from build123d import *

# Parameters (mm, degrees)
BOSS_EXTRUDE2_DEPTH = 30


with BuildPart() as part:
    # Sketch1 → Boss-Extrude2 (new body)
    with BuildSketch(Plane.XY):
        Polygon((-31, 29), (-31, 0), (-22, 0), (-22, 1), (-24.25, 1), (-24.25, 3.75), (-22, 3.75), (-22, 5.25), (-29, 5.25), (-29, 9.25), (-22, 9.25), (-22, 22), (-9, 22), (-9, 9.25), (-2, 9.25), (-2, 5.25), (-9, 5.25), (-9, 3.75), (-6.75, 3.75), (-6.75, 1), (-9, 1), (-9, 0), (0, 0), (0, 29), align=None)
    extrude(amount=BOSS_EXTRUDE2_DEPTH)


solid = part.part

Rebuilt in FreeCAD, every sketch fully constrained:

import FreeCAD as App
import Part
import Sketcher

doc = App.newDocument("Part")
body = doc.addObject("PartDesign::Body", "Body")

# Sketch on XY plane
sketch1 = body.newObject("Sketcher::SketchObject", "Sketch")
sketch1.AttachmentSupport = (doc.getObject("XY_Plane"), [""])
sketch1.MapMode = "FlatFace"
sketch1.addGeometry(Part.LineSegment(App.Vector(-31, 29, 0), App.Vector(-31, 0, 0)), False)
sketch1.addGeometry(Part.LineSegment(App.Vector(-31, 0, 0), App.Vector(-22, 0, 0)), False)
sketch1.addGeometry(Part.LineSegment(App.Vector(-22, 0, 0), App.Vector(-22, 1, 0)), False)
sketch1.addGeometry(Part.LineSegment(App.Vector(-22, 1, 0), App.Vector(-24.2, 1, 0)), False)
sketch1.addGeometry(Part.LineSegment(App.Vector(-24.2, 1, 0), App.Vector(-24.2, 3.8, 0)), False)
sketch1.addGeometry(Part.LineSegment(App.Vector(-24.2, 3.8, 0), App.Vector(-22, 3.8, 0)), False)
sketch1.addGeometry(Part.LineSegment(App.Vector(-22, 3.8, 0), App.Vector(-22, 5.2, 0)), False)
sketch1.addGeometry(Part.LineSegment(App.Vector(-22, 5.2, 0), App.Vector(-29, 5.2, 0)), False)
sketch1.addGeometry(Part.LineSegment(App.Vector(-29, 5.2, 0), App.Vector(-29, 9.2, 0)), False)
sketch1.addGeometry(Part.LineSegment(App.Vector(-29, 9.2, 0), App.Vector(-22, 9.2, 0)), False)
sketch1.addGeometry(Part.LineSegment(App.Vector(-22, 9.2, 0), App.Vector(-22, 22, 0)), False)
sketch1.addGeometry(Part.LineSegment(App.Vector(-22, 22, 0), App.Vector(-9, 22, 0)), False)
sketch1.addGeometry(Part.LineSegment(App.Vector(-9, 22, 0), App.Vector(-9, 9.2, 0)), False)
sketch1.addGeometry(Part.LineSegment(App.Vector(-9, 9.2, 0), App.Vector(-2, 9.2, 0)), False)
sketch1.addGeometry(Part.LineSegment(App.Vector(-2, 9.2, 0), App.Vector(-2, 5.2, 0)), False)
sketch1.addGeometry(Part.LineSegment(App.Vector(-2, 5.2, 0), App.Vector(-9, 5.2, 0)), False)
sketch1.addGeometry(Part.LineSegment(App.Vector(-9, 5.2, 0), App.Vector(-9, 3.8, 0)), False)
sketch1.addGeometry(Part.LineSegment(App.Vector(-9, 3.8, 0), App.Vector(-6.8, 3.8, 0)), False)
sketch1.addGeometry(Part.LineSegment(App.Vector(-6.8, 3.8, 0), App.Vector(-6.8, 1, 0)), False)
sketch1.addGeometry(Part.LineSegment(App.Vector(-6.8, 1, 0), App.Vector(-9, 1, 0)), False)
sketch1.addGeometry(Part.LineSegment(App.Vector(-9, 1, 0), App.Vector(-9, 0, 0)), False)
sketch1.addGeometry(Part.LineSegment(App.Vector(-9, 0, 0), App.Vector(0, 0, 0)), False)
sketch1.addGeometry(Part.LineSegment(App.Vector(0, 0, 0), App.Vector(0, 29, 0)), False)
sketch1.addGeometry(Part.LineSegment(App.Vector(0, 29, 0), App.Vector(-31, 29, 0)), False)
sketch1.addConstraint(Sketcher.Constraint("Coincident", 0, 2, 1, 1))
sketch1.addConstraint(Sketcher.Constraint("Coincident", 1, 2, 2, 1))
sketch1.addConstraint(Sketcher.Constraint("Coincident", 2, 2, 3, 1))
sketch1.addConstraint(Sketcher.Constraint("Coincident", 3, 2, 4, 1))
sketch1.addConstraint(Sketcher.Constraint("Coincident", 4, 2, 5, 1))
sketch1.addConstraint(Sketcher.Constraint("Coincident", 5, 2, 6, 1))
sketch1.addConstraint(Sketcher.Constraint("Coincident", 6, 2, 7, 1))
sketch1.addConstraint(Sketcher.Constraint("Coincident", 7, 2, 8, 1))
sketch1.addConstraint(Sketcher.Constraint("Coincident", 8, 2, 9, 1))
sketch1.addConstraint(Sketcher.Constraint("Coincident", 9, 2, 10, 1))
sketch1.addConstraint(Sketcher.Constraint("Coincident", 10, 2, 11, 1))
sketch1.addConstraint(Sketcher.Constraint("Coincident", 11, 2, 12, 1))
sketch1.addConstraint(Sketcher.Constraint("Coincident", 12, 2, 13, 1))
sketch1.addConstraint(Sketcher.Constraint("Coincident", 13, 2, 14, 1))
sketch1.addConstraint(Sketcher.Constraint("Coincident", 14, 2, 15, 1))
sketch1.addConstraint(Sketcher.Constraint("Coincident", 15, 2, 16, 1))
sketch1.addConstraint(Sketcher.Constraint("Coincident", 16, 2, 17, 1))
sketch1.addConstraint(Sketcher.Constraint("Coincident", 17, 2, 18, 1))
sketch1.addConstraint(Sketcher.Constraint("Coincident", 18, 2, 19, 1))
sketch1.addConstraint(Sketcher.Constraint("Coincident", 19, 2, 20, 1))
sketch1.addConstraint(Sketcher.Constraint("Coincident", 20, 2, 21, 1))
sketch1.addConstraint(Sketcher.Constraint("Coincident", 21, 2, 22, 1))
sketch1.addConstraint(Sketcher.Constraint("Coincident", 22, 2, 23, 1))
sketch1.addConstraint(Sketcher.Constraint("Coincident", 23, 2, 0, 1))
sketch1.addConstraint(Sketcher.Constraint("Vertical", 0))
sketch1.addConstraint(Sketcher.Constraint("Horizontal", 1))
sketch1.addConstraint(Sketcher.Constraint("Vertical", 2))
sketch1.addConstraint(Sketcher.Constraint("Horizontal", 3))
sketch1.addConstraint(Sketcher.Constraint("Vertical", 4))
sketch1.addConstraint(Sketcher.Constraint("Horizontal", 5))
sketch1.addConstraint(Sketcher.Constraint("Vertical", 6))
sketch1.addConstraint(Sketcher.Constraint("Horizontal", 7))
sketch1.addConstraint(Sketcher.Constraint("Vertical", 8))
sketch1.addConstraint(Sketcher.Constraint("Horizontal", 9))
sketch1.addConstraint(Sketcher.Constraint("Vertical", 10))
sketch1.addConstraint(Sketcher.Constraint("Horizontal", 11))
sketch1.addConstraint(Sketcher.Constraint("Vertical", 12))
sketch1.addConstraint(Sketcher.Constraint("Horizontal", 13))
sketch1.addConstraint(Sketcher.Constraint("Vertical", 14))
sketch1.addConstraint(Sketcher.Constraint("Horizontal", 15))
sketch1.addConstraint(Sketcher.Constraint("Vertical", 16))
sketch1.addConstraint(Sketcher.Constraint("Horizontal", 17))
sketch1.addConstraint(Sketcher.Constraint("Vertical", 18))
sketch1.addConstraint(Sketcher.Constraint("Horizontal", 19))
sketch1.addConstraint(Sketcher.Constraint("Vertical", 20))
sketch1.addConstraint(Sketcher.Constraint("Horizontal", 21))
sketch1.addConstraint(Sketcher.Constraint("Vertical", 22))
sketch1.addConstraint(Sketcher.Constraint("Horizontal", 23))
sketch1.addConstraint(Sketcher.Constraint("Coincident", 21, 2, -1, 1))
sketch1.addConstraint(Sketcher.Constraint("PointOnObject", 0, 2, -1))
sketch1.addConstraint(Sketcher.Constraint("Horizontal", 9, 2, 12, 2))
sketch1.addConstraint(Sketcher.Constraint("Horizontal", 7, 2, 14, 2))
sketch1.addConstraint(Sketcher.Constraint("Horizontal", 5, 2, 16, 2))
sketch1.addConstraint(Sketcher.Constraint("Horizontal", 3, 2, 18, 2))
sketch1.addConstraint(Sketcher.Constraint("Vertical", 2, 2, 5, 2))
sketch1.addConstraint(Sketcher.Constraint("Vertical", 6, 2, 9, 2))
sketch1.addConstraint(Sketcher.Constraint("Vertical", 12, 2, 15, 2))
sketch1.addConstraint(Sketcher.Constraint("Vertical", 16, 2, 19, 2))
sketch1.addConstraint(Sketcher.Constraint("Equal", 9, 13))
sketch1.addConstraint(Sketcher.Constraint("Equal", 5, 17))
sketch1.addConstraint(Sketcher.Constraint("Equal", 1, 21))
sketch1.addConstraint(Sketcher.Constraint("DistanceX", 1, 1, 1, 2, 9.0))
sketch1.addConstraint(Sketcher.Constraint("DistanceX", 7, 2, 7, 1, 7.0))
sketch1.addConstraint(Sketcher.Constraint("DistanceX", 11, 1, 11, 2, 13.0))
sketch1.addConstraint(Sketcher.Constraint("DistanceY", 0, 2, 0, 1, 29.0))
sketch1.addConstraint(Sketcher.Constraint("DistanceY", 2, 1, 2, 2, 1.0))
sketch1.addConstraint(Sketcher.Constraint("DistanceY", 8, 1, 8, 2, 4.0))
sketch1.addConstraint(Sketcher.Constraint("DistanceY", 6, 1, 6, 2, 1.5))
sketch1.addConstraint(Sketcher.Constraint("DistanceY", -1, 1, 10, 2, 22.0))
sketch1.addConstraint(Sketcher.Constraint("DistanceX", 3, 2, 3, 1, 2.25))
sketch1.addConstraint(Sketcher.Constraint("DistanceY", 4, 1, 4, 2, 2.75))
pad1 = body.newObject("PartDesign::Pad", "Pad")
pad1.Profile = sketch1
pad1.Length = 30

doc.recompute()
